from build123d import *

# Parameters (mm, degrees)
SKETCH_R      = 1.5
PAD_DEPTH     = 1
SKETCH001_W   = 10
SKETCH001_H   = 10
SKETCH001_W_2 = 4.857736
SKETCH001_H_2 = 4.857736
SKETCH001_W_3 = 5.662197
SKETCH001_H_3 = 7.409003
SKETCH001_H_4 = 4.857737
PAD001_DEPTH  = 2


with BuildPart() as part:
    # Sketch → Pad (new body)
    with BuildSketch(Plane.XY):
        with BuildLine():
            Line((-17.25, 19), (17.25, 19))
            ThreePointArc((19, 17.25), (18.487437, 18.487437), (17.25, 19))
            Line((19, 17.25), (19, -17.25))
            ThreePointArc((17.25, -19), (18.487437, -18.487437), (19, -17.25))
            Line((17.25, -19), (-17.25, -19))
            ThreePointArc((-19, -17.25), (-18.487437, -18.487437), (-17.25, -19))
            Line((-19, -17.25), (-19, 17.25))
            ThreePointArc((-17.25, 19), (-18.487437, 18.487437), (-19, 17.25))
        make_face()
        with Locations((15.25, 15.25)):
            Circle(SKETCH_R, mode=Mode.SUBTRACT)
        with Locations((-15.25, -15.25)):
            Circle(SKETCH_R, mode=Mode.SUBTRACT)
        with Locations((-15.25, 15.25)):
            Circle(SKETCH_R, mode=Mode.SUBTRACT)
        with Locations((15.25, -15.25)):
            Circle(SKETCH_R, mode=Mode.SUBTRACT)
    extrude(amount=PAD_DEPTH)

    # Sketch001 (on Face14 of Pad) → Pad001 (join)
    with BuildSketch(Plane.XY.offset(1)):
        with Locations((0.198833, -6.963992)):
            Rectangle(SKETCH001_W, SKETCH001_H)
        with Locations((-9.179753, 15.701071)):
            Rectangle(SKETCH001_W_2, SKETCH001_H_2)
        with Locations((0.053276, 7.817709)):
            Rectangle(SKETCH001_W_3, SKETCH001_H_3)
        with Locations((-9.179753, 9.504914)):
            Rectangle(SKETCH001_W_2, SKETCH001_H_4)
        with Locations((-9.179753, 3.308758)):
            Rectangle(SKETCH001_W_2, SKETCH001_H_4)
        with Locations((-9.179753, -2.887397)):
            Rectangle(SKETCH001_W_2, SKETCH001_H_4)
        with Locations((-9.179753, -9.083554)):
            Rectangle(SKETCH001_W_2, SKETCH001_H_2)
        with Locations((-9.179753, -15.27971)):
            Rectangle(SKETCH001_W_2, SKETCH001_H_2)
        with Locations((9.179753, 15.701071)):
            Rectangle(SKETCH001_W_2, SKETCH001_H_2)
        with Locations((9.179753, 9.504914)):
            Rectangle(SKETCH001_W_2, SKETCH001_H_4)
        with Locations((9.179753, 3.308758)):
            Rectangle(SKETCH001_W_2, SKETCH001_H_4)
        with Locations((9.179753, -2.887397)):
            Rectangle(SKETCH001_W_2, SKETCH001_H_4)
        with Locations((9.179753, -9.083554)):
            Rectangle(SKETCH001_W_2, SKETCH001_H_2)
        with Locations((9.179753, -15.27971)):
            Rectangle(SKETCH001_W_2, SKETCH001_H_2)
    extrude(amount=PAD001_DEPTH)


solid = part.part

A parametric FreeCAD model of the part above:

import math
import FreeCAD as App
import Part
import Sketcher

V = App.Vector

doc = App.newDocument("Part")
body = doc.addObject("PartDesign::Body", "Body")

# Sketch on XY plane
sketch1 = doc.addObject("Sketcher::SketchObject", "Sketch")
body.addObject(sketch1)
sketch1.AttachmentSupport = (doc.XY_Plane, [""])
sketch1.MapMode = "FlatFace"
sketch1.addGeometry([
    Part.LineSegment(V(17.2, 19, 0), V(-17.2, 19, 0)),  # 0
    Part.ArcOfCircle(Part.Circle(V(-17.3, 17.3, 0), V(0, 0, 1), 1.7), math.radians(90), math.radians(180)),  # 1
    Part.LineSegment(V(-19, 17.2, 0), V(-19, -17.2, 0)),  # 2
    Part.ArcOfCircle(Part.Circle(V(-17.3, -17.3, 0), V(0, 0, 1), 1.7), math.radians(180), math.radians(270)),  # 3
    Part.LineSegment(V(-17.2, -19, 0), V(17.2, -19, 0)),  # 4
    Part.ArcOfCircle(Part.Circle(V(17.3, -17.3, 0), V(0, 0, 1), 1.7), math.radians(-90), math.radians(0)),  # 5
    Part.LineSegment(V(19, -17.2, 0), V(19, 17.2, 0)),  # 6
    Part.ArcOfCircle(Part.Circle(V(17.3, 17.3, 0), V(0, 0, 1), 1.7), math.radians(0), math.radians(90)),  # 7
    Part.Circle(V(15.2, -15.2, 0), V(0, 0, 1), 1.5),  # 8
    Part.Circle(V(-15.2, -15.2, 0), V(0, 0, 1), 1.5),  # 9
    Part.Circle(V(15.2, 15.2, 0), V(0, 0, 1), 1.5),  # 10
    Part.Circle(V(-15.2, 15.2, 0), V(0, 0, 1), 1.5),  # 11
], False)
sketch1.addConstraint([
    Sketcher.Constraint("Tangent", 0, 2, 1, 1),
    Sketcher.Constraint("Tangent", 1, 2, 2, 1),
    Sketcher.Constraint("Tangent", 2, 2, 3, 1),
    Sketcher.Constraint("Tangent", 3, 2, 4, 1),
    Sketcher.Constraint("Tangent", 4, 2, 5, 1),
    Sketcher.Constraint("Tangent", 5, 2, 6, 1),
    Sketcher.Constraint("Tangent", 6, 2, 7, 1),
    Sketcher.Constraint("Tangent", 7, 2, 0, 1),
    Sketcher.Constraint("Horizontal", 0),
    Sketcher.Constraint("Vertical", 2),
    Sketcher.Constraint("Horizontal", 4),
    Sketcher.Constraint("Vertical", 6),
    Sketcher.Constraint("Equal", 1, 3),
    Sketcher.Constraint("Equal", 3, 5),
    Sketcher.Constraint("Equal", 5, 7),
    Sketcher.Constraint("Equal", 8, 9),
    Sketcher.Constraint("Equal", 9, 10),
    Sketcher.Constraint("Equal", 10, 11),
    Sketcher.Constraint("Symmetric", 1, 3, 5, 3, -1, 1),
    Sketcher.Constraint("Symmetric", 9, 3, 10, 3, -1, 1),
    Sketcher.Constraint("Symmetric", 8, 3, 11, 3, -1, 1),
    Sketcher.Constraint("Symmetric", 8, 3, 9, 3, -2),
    Sketcher.Constraint("Equal", 4, 2),
    Sketcher.Constraint("Diameter", 8, 3.0),
    Sketcher.Constraint("Radius", 1, 1.75),
    Sketcher.Constraint("DistanceX", 0, 2, 0, 1, 34.5),
    Sketcher.Constraint("DistanceX", 8, 3, 5, 3, 2.0),
    Sketcher.Constraint("DistanceY", 5, 3, 8, 3, 2.0),
])
pad1 = doc.addObject("PartDesign::Pad", "Pad")
body.addObject(pad1)
pad1.Profile = sketch1
pad1.Length = 1

# Sketch on XY plane
sketch2 = doc.addObject("Sketcher::SketchObject", "Sketch001")
body.addObject(sketch2)
sketch2.AttachmentSupport = (doc.XY_Plane, [""])
sketch2.MapMode = "FlatFace"
sketch2.AttachmentOffset = App.Placement(V(0, 0, 1), App.Rotation())
sketch2.addGeometry([
    Part.LineSegment(V(-4.8, -2, 0), V(-4.8, -12, 0)),  # 0
    Part.LineSegment(V(-4.8, -12, 0), V(5.2, -12, 0)),  # 1
    Part.LineSegment(V(5.2, -12, 0), V(5.2, -2, 0)),  # 2
    Part.LineSegment(V(5.2, -2, 0), V(-4.8, -2, 0)),  # 3
    Part.LineSegment(V(-11.6, 18.1, 0), V(-11.6, 13.3, 0)),  # 4
    Part.LineSegment(V(-11.6, 13.3, 0), V(-6.8, 13.3, 0)),  # 5
    Part.LineSegment(V(-6.8, 13.3, 0), V(-6.8, 18.1, 0)),  # 6
    Part.LineSegment(V(-6.8, 18.1, 0), V(-11.6, 18.1, 0)),  # 7
    Part.LineSegment(V(-2.8, 11.5, 0), V(-2.8, 4.1, 0)),  # 8
    Part.LineSegment(V(-2.8, 4.1, 0), V(2.9, 4.1, 0)),  # 9
    Part.LineSegment(V(2.9, 4.1, 0), V(2.9, 11.5, 0)),  # 10
    Part.LineSegment(V(2.9, 11.5, 0), V(-2.8, 11.5, 0)),  # 11
    Part.LineSegment(V(-11.6, 11.9, 0), V(-11.6, 7.1, 0)),  # 12
    Part.LineSegment(V(-11.6, 7.1, 0), V(-6.8, 7.1, 0)),  # 13
    Part.LineSegment(V(-6.8, 7.1, 0), V(-6.8, 11.9, 0)),  # 14
    Part.LineSegment(V(-6.8, 11.9, 0), V(-11.6, 11.9, 0)),  # 15
    Part.LineSegment(V(-11.6, 5.7, 0), V(-11.6, 0.9, 0)),  # 16
    Part.LineSegment(V(-11.6, 0.9, 0), V(-6.8, 0.9, 0)),  # 17
    Part.LineSegment(V(-6.8, 0.9, 0), V(-6.8, 5.7, 0)),  # 18
    Part.LineSegment(V(-6.8, 5.7, 0), V(-11.6, 5.7, 0)),  # 19
    Part.LineSegment(V(-11.6, -0.5, 0), V(-11.6, -5.3, 0)),  # 20
    Part.LineSegment(V(-11.6, -5.3, 0), V(-6.8, -5.3, 0)),  # 21
    Part.LineSegment(V(-6.8, -5.3, 0), V(-6.8, -0.5, 0)),  # 22
    Part.LineSegment(V(-6.8, -0.5, 0), V(-11.6, -0.5, 0)),  # 23
    Part.LineSegment(V(-11.6, -6.7, 0), V(-11.6, -11.5, 0)),  # 24
    Part.LineSegment(V(-11.6, -11.5, 0), V(-6.8, -11.5, 0)),  # 25
    Part.LineSegment(V(-6.8, -11.5, 0), V(-6.8, -6.7, 0)),  # 26
    Part.LineSegment(V(-6.8, -6.7, 0), V(-11.6, -6.7, 0)),  # 27
    Part.LineSegment(V(-11.6, -12.9, 0), V(-11.6, -17.7, 0)),  # 28
    Part.LineSegment(V(-11.6, -17.7, 0), V(-6.8, -17.7, 0)),  # 29
    Part.LineSegment(V(-6.8, -17.7, 0), V(-6.8, -12.9, 0)),  # 30
    Part.LineSegment(V(-6.8, -12.9, 0), V(-11.6, -12.9, 0)),  # 31
    Part.LineSegment(V(6.8, 18.1, 0), V(6.8, 13.3, 0)),  # 32
    Part.LineSegment(V(6.8, 13.3, 0), V(11.6, 13.3, 0)),  # 33
    Part.LineSegment(V(11.6, 13.3, 0), V(11.6, 18.1, 0)),  # 34
    Part.LineSegment(V(11.6, 18.1, 0), V(6.8, 18.1, 0)),  # 35
    Part.LineSegment(V(6.8, 11.9, 0), V(6.8, 7.1, 0)),  # 36
    Part.LineSegment(V(6.8, 7.1, 0), V(11.6, 7.1, 0)),  # 37
    Part.LineSegment(V(11.6, 7.1, 0), V(11.6, 11.9, 0)),  # 38
    Part.LineSegment(V(11.6, 11.9, 0), V(6.8, 11.9, 0)),  # 39
    Part.LineSegment(V(6.8, 5.7, 0), V(6.8, 0.9, 0)),  # 40
    Part.LineSegment(V(6.8, 0.9, 0), V(11.6, 0.9, 0)),  # 41
    Part.LineSegment(V(11.6, 0.9, 0), V(11.6, 5.7, 0)),  # 42
    Part.LineSegment(V(11.6, 5.7, 0), V(6.8, 5.7, 0)),  # 43
    Part.LineSegment(V(6.8, -0.5, 0), V(6.8, -5.3, 0)),  # 44
    Part.LineSegment(V(6.8, -5.3, 0), V(11.6, -5.3, 0)),  # 45
    Part.LineSegment(V(11.6, -5.3, 0), V(11.6, -0.5, 0)),  # 46
    Part.LineSegment(V(11.6, -0.5, 0), V(6.8, -0.5, 0)),  # 47
    Part.LineSegment(V(6.8, -6.7, 0), V(6.8, -11.5, 0)),  # 48
    Part.LineSegment(V(6.8, -11.5, 0), V(11.6, -11.5, 0)),  # 49
    Part.LineSegment(V(11.6, -11.5, 0), V(11.6, -6.7, 0)),  # 50
    Part.LineSegment(V(11.6, -6.7, 0), V(6.8, -6.7, 0)),  # 51
    Part.LineSegment(V(6.8, -12.9, 0), V(6.8, -17.7, 0)),  # 52
    Part.LineSegment(V(6.8, -17.7, 0), V(11.6, -17.7, 0)),  # 53
    Part.LineSegment(V(11.6, -17.7, 0), V(11.6, -12.9, 0)),  # 54
    Part.LineSegment(V(11.6, -12.9, 0), V(6.8, -12.9, 0)),  # 55
], False)
sketch2.addConstraint([
    Sketcher.Constraint("Coincident", 0, 2, 1, 1),
    Sketcher.Constraint("Coincident", 1, 2, 2, 1),
    Sketcher.Constraint("Coincident", 2, 2, 3, 1),
    Sketcher.Constraint("Coincident", 3, 2, 0, 1),
    Sketcher.Constraint("Coincident", 4, 2, 5, 1),
    Sketcher.Constraint("Coincident", 5, 2, 6, 1),
    Sketcher.Constraint("Coincident", 6, 2, 7, 1),
    Sketcher.Constraint("Coincident", 7, 2, 4, 1),
    Sketcher.Constraint("Coincident", 8, 2, 9, 1),
    Sketcher.Constraint("Coincident", 9, 2, 10, 1),
    Sketcher.Constraint("Coincident", 10, 2, 11, 1),
    Sketcher.Constraint("Coincident", 11, 2, 8, 1),
    Sketcher.Constraint("Coincident", 12, 2, 13, 1),
    Sketcher.Constraint("Coincident", 13, 2, 14, 1),
    Sketcher.Constraint("Coincident", 14, 2, 15, 1),
    Sketcher.Constraint("Coincident", 15, 2, 12, 1),
    Sketcher.Constraint("Coincident", 16, 2, 17, 1),
    Sketcher.Constraint("Coincident", 17, 2, 18, 1),
    Sketcher.Constraint("Coincident", 18, 2, 19, 1),
    Sketcher.Constraint("Coincident", 19, 2, 16, 1),
    Sketcher.Constraint("Coincident", 20, 2, 21, 1),
    Sketcher.Constraint("Coincident", 21, 2, 22, 1),
    Sketcher.Constraint("Coincident", 22, 2, 23, 1),
    Sketcher.Constraint("Coincident", 23, 2, 20, 1),
    Sketcher.Constraint("Coincident", 24, 2, 25, 1),
    Sketcher.Constraint("Coincident", 25, 2, 26, 1),
    Sketcher.Constraint("Coincident", 26, 2, 27, 1),
    Sketcher.Constraint("Coincident", 27, 2, 24, 1),
    Sketcher.Constraint("Coincident", 28, 2, 29, 1),
    Sketcher.Constraint("Coincident", 29, 2, 30, 1),
    Sketcher.Constraint("Coincident", 30, 2, 31, 1),
    Sketcher.Constraint("Coincident", 31, 2, 28, 1),
    Sketcher.Constraint("Coincident", 32, 2, 33, 1),
    Sketcher.Constraint("Coincident", 33, 2, 34, 1),
    Sketcher.Constraint("Coincident", 34, 2, 35, 1),
    Sketcher.Constraint("Coincident", 35, 2, 32, 1),
    Sketcher.Constraint("Coincident", 36, 2, 37, 1),
    Sketcher.Constraint("Coincident", 37, 2, 38, 1),
    Sketcher.Constraint("Coincident", 38, 2, 39, 1),
    Sketcher.Constraint("Coincident", 39, 2, 36, 1),
    Sketcher.Constraint("Coincident", 40, 2, 41, 1),
    Sketcher.Constraint("Coincident", 41, 2, 42, 1),
    Sketcher.Constraint("Coincident", 42, 2, 43, 1),
    Sketcher.Constraint("Coincident", 43, 2, 40, 1),
    Sketcher.Constraint("Coincident", 44, 2, 45, 1),
    Sketcher.Constraint("Coincident", 45, 2, 46, 1),
    Sketcher.Constraint("Coincident", 46, 2, 47, 1),
    Sketcher.Constraint("Coincident", 47, 2, 44, 1),
    Sketcher.Constraint("Coincident", 48, 2, 49, 1),
    Sketcher.Constraint("Coincident", 49, 2, 50, 1),
    Sketcher.Constraint("Coincident", 50, 2, 51, 1),
    Sketcher.Constraint("Coincident", 51, 2, 48, 1),
    Sketcher.Constraint("Coincident", 52, 2, 53, 1),
    Sketcher.Constraint("Coincident", 53, 2, 54, 1),
    Sketcher.Constraint("Coincident", 54, 2, 55, 1),
    Sketcher.Constraint("Coincident", 55, 2, 52, 1),
    Sketcher.Constraint("Vertical", 0),
    Sketcher.Constraint("Horizontal", 1),
    Sketcher.Constraint("Vertical", 2),
    Sketcher.Constraint("Horizontal", 3),
    Sketcher.Constraint("Vertical", 4),
    Sketcher.Constraint("Horizontal", 5),
    Sketcher.Constraint("Vertical", 6),
    Sketcher.Constraint("Horizontal", 7),
    Sketcher.Constraint("Vertical", 8),
    Sketcher.Constraint("Horizontal", 9),
    Sketcher.Constraint("Vertical", 10),
    Sketcher.Constraint("Horizontal", 11),
    Sketcher.Constraint("Vertical", 12),
    Sketcher.Constraint("Horizontal", 13),
    Sketcher.Constraint("Vertical", 14),
    Sketcher.Constraint("Horizontal", 15),
    Sketcher.Constraint("Vertical", 16),
    Sketcher.Constraint("Horizontal", 17),
    Sketcher.Constraint("Vertical", 18),
    Sketcher.Constraint("Horizontal", 19),
    Sketcher.Constraint("Vertical", 20),
    Sketcher.Constraint("Horizontal", 21),
    Sketcher.Constraint("Vertical", 22),
    Sketcher.Constraint("Horizontal", 23),
    Sketcher.Constraint("Vertical", 24),
    Sketcher.Constraint("Horizontal", 25),
    Sketcher.Constraint("Vertical", 26),
    Sketcher.Constraint("Horizontal", 27),
    Sketcher.Constraint("Vertical", 28),
    Sketcher.Constraint("Horizontal", 29),
    Sketcher.Constraint("Vertical", 30),
    Sketcher.Constraint("Horizontal", 31),
    Sketcher.Constraint("Vertical", 32),
    Sketcher.Constraint("Horizontal", 33),
    Sketcher.Constraint("Vertical", 34),
    Sketcher.Constraint("Horizontal", 35),
    Sketcher.Constraint("Vertical", 36),
    Sketcher.Constraint("Horizontal", 37),
    Sketcher.Constraint("Vertical", 38),
    Sketcher.Constraint("Horizontal", 39),
    Sketcher.Constraint("Vertical", 40),
    Sketcher.Constraint("Horizontal", 41),
    Sketcher.Constraint("Vertical", 42),
    Sketcher.Constraint("Horizontal", 43),
    Sketcher.Constraint("Vertical", 44),
    Sketcher.Constraint("Horizontal", 45),
    Sketcher.Constraint("Vertical", 46),
    Sketcher.Constraint("Horizontal", 47),
    Sketcher.Constraint("Vertical", 48),
    Sketcher.Constraint("Horizontal", 49),
    Sketcher.Constraint("Vertical", 50),
    Sketcher.Constraint("Horizontal", 51),
    Sketcher.Constraint("Vertical", 52),
    Sketcher.Constraint("Horizontal", 53),
    Sketcher.Constraint("Vertical", 54),
    Sketcher.Constraint("Horizontal", 55),
    Sketcher.Constraint("Symmetric", 5, 2, 32, 2, -2),
    Sketcher.Constraint("Symmetric", 7, 2, 34, 2, -2),
    Sketcher.Constraint("Symmetric", 13, 2, 36, 2, -2),
    Sketcher.Constraint("Symmetric", 15, 2, 38, 2, -2),
    Sketcher.Constraint("Symmetric", 17, 2, 40, 2, -2),
    Sketcher.Constraint("Symmetric", 19, 2, 42, 2, -2),
    Sketcher.Constraint("Symmetric", 21, 2, 44, 2, -2),
    Sketcher.Constraint("Symmetric", 23, 2, 46, 2, -2),
    Sketcher.Constraint("Symmetric", 25, 2, 48, 2, -2),
    Sketcher.Constraint("Symmetric", 27, 2, 50, 2, -2),
    Sketcher.Constraint("Symmetric", 29, 2, 52, 2, -2),
    Sketcher.Constraint("Symmetric", 31, 2, 54, 2, -2),
    Sketcher.Constraint("Vertical", 7, 2, 12, 2),
    Sketcher.Constraint("Vertical", 6, 2, 13, 2),
    Sketcher.Constraint("Vertical", 15, 2, 16, 2),
    Sketcher.Constraint("Vertical", 14, 2, 17, 2),
    Sketcher.Constraint("Vertical", 19, 2, 20, 2),
    Sketcher.Constraint("Vertical", 18, 2, 21, 2),
    Sketcher.Constraint("Vertical", 23, 2, 24, 2),
    Sketcher.Constraint("Vertical", 22, 2, 25, 2),
    Sketcher.Constraint("Vertical", 27, 2, 28, 2),
    Sketcher.Constraint("Vertical", 26, 2, 29, 2),
    Sketcher.Constraint("Equal", 3, 0),
    Sketcher.Constraint("Equal", 55, 4),
    Sketcher.Constraint("Equal", 6, 12),
    Sketcher.Constraint("Equal", 14, 16),
    Sketcher.Constraint("Equal", 18, 20),
    Sketcher.Constraint("Equal", 22, 24),
    Sketcher.Constraint("Equal", 26, 28),
    Sketcher.Constraint("DistanceX", 1, 1, 1, 2, 10.0),
    Sketcher.Constraint("DistanceY", 3, 2, 8, 2, 6.077199),
    Sketcher.Constraint("DistanceX", 4, 2, 8, 2, 8.830799),
    Sketcher.Constraint("DistanceX", 5, 1, 5, 2, 4.857736),
    Sketcher.Constraint("DistanceX", 9, 1, 9, 2, 5.662197),
    Sketcher.Constraint("DistanceY", 8, 2, 8, 1, 7.409003),
    Sketcher.Constraint("DistanceY", 0, 2, -1, 1, 11.963992),
    Sketcher.Constraint("DistanceX", 4, 2, -1, 1, 11.608621),
    Sketcher.Constraint("DistanceY", -1, 1, 6, 2, 18.129939),
    Sketcher.Constraint("DistanceY", -1, 1, 16, 2, 0.879889),
    Sketcher.Constraint("DistanceY", 22, 2, -1, 1, 0.458529),
    Sketcher.Constraint("DistanceX", 5, 2, 2, 2, 11.949718),
    Sketcher.Constraint("DistanceY", 8, 2, 12, 2, 2.962838),
    Sketcher.Constraint("DistanceY", 0, 2, 24, 2, 0.45157),
    Sketcher.Constraint("DistanceY", 28, 2, 27, 2, 11.053892),
])
pad2 = doc.addObject("PartDesign::Pad", "Pad001")
body.addObject(pad2)
pad2.Profile = sketch2
pad2.Length = 2

doc.recompute()
